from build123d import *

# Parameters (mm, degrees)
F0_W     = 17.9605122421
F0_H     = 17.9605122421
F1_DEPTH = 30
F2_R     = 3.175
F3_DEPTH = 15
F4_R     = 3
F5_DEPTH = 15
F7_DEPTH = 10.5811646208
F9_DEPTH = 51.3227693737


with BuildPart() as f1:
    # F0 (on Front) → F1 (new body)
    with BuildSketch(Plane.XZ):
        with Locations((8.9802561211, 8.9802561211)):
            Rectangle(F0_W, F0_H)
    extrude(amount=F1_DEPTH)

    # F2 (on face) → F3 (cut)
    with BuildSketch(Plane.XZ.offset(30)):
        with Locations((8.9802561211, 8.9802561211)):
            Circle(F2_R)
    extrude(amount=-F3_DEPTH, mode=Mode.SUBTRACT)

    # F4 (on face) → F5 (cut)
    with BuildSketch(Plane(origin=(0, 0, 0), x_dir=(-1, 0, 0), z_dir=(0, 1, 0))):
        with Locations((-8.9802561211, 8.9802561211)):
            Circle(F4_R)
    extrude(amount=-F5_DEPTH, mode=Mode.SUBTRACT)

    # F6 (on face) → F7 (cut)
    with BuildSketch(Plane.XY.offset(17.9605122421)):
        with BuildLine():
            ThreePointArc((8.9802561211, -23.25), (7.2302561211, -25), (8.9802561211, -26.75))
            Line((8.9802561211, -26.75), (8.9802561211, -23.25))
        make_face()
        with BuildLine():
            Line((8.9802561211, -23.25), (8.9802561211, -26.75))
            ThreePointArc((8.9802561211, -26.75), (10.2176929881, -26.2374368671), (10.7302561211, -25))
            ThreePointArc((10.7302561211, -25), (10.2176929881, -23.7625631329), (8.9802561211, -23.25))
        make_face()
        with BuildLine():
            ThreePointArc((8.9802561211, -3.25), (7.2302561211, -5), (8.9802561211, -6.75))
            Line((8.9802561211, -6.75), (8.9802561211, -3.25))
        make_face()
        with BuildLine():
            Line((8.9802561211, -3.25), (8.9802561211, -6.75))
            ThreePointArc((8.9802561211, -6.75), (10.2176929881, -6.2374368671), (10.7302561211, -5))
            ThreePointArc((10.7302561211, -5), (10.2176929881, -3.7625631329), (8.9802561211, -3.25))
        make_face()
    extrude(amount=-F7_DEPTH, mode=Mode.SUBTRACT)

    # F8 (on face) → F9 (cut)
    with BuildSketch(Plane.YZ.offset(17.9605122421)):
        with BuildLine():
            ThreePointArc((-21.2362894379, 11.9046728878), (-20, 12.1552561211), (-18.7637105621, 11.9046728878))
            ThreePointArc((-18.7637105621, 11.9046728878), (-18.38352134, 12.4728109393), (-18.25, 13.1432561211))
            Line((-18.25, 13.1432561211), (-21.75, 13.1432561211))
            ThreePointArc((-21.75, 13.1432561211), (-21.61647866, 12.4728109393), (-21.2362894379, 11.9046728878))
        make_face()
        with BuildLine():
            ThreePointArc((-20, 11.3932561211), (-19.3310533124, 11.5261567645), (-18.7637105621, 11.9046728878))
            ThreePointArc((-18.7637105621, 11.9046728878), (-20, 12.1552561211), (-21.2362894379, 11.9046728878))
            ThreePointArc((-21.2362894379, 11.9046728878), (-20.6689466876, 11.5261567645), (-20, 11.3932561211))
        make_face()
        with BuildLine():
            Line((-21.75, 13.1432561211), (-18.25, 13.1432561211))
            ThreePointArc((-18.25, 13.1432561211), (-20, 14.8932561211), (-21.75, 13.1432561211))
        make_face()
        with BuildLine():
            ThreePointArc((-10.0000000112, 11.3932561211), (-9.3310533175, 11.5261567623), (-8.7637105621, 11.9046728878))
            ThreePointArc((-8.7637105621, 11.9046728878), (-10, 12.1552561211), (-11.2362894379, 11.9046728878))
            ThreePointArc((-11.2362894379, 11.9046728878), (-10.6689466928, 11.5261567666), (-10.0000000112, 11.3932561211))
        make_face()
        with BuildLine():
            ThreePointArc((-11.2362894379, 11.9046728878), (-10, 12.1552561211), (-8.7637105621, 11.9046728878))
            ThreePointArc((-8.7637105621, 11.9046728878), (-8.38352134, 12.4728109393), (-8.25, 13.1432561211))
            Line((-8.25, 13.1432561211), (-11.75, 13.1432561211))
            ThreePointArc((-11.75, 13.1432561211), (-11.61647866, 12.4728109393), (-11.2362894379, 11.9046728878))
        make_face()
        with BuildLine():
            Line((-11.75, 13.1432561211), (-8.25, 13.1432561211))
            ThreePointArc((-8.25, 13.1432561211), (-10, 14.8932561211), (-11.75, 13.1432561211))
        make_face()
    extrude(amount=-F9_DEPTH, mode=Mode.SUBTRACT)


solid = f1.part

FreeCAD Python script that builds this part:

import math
import FreeCAD as App
import Part
import Sketcher
from FreeCAD import Vector
Q = App.Units.Quantity


def add_polygon(sketch, points):
    """Adds a closed chain of lines whose ends are joined by coincident constraints."""
    first, n = sketch.GeometryCount, len(points)
    for a, b in zip(points, points[1:] + points[:1]):
        sketch.addGeometry(Part.LineSegment(App.Vector(*a, 0), App.Vector(*b, 0)), False)
    for i in range(n):
        sketch.addConstraint(Sketcher.Constraint("Coincident", first + i, 2, first + (i + 1) % n, 1))

doc = App.newDocument("Part")
body = doc.addObject("PartDesign::Body", "Body")

sketch1 = body.newObject("Sketcher::SketchObject", "Sketch")
sketch1.AttachmentSupport = (doc.getObject("XZ_Plane"), [""])
sketch1.MapMode = "FlatFace"
add_polygon(sketch1, [(0, 17.960512), (0, 0), (17.960512, 0), (17.960512, 17.960512)])
sketch1.addConstraint(Sketcher.Constraint("Vertical", 0))
sketch1.addConstraint(Sketcher.Constraint("Horizontal", 1))
sketch1.addConstraint(Sketcher.Constraint("Vertical", 2))
sketch1.addConstraint(Sketcher.Constraint("Horizontal", 3))
sketch1.addConstraint(Sketcher.Constraint("Coincident", 0, 2, -1, 1))
sketch1.addConstraint(Sketcher.Constraint("Equal", 3, 0))
sketch1.addConstraint(Sketcher.Constraint("DistanceX", 1, 1, 1, 2, Q("17.960512 mm")))
pad1 = body.newObject("PartDesign::Pad", "Pad")
pad1.Profile = sketch1
pad1.Length = 30

sketch2 = body.newObject("Sketcher::SketchObject", "Sketch001")
sketch2.AttachmentSupport = (doc.getObject("XZ_Plane"), [""])
sketch2.MapMode = "FlatFace"
sketch2.AttachmentOffset = App.Placement(Vector(0, 0, 30), App.Rotation())
sketch2.addGeometry(Part.Circle(Vector(8.980256, 8.980256, 0), Vector(0, 0, 1), 3.175), False)
sketch2.addConstraint(Sketcher.Constraint("Diameter", 0, Q("6.35 mm")))
sketch2.addConstraint(Sketcher.Constraint("DistanceX", -1, 1, 0, 3, Q("8.980256 mm")))
sketch2.addConstraint(Sketcher.Constraint("DistanceY", -1, 1, 0, 3, Q("8.980256 mm")))
pocket1 = body.newObject("PartDesign::Pocket", "Pocket")
pocket1.Profile = sketch2
pocket1.Length = 15

sketch3 = body.newObject("Sketcher::SketchObject", "Sketch002")
sketch3.AttachmentSupport = (doc.getObject("XZ_Plane"), [""])
sketch3.MapMode = "FlatFace"
sketch3.addGeometry(Part.Circle(Vector(8.980256, 8.980256, 0), Vector(0, 0, 1), 3), False)
sketch3.addConstraint(Sketcher.Constraint("Diameter", 0, Q("6 mm")))
sketch3.addConstraint(Sketcher.Constraint("DistanceX", -1, 1, 0, 3, Q("8.980256 mm")))
sketch3.addConstraint(Sketcher.Constraint("DistanceY", -1, 1, 0, 3, Q("8.980256 mm")))
pocket2 = body.newObject("PartDesign::Pocket", "Pocket001")
pocket2.Profile = sketch3
pocket2.Length = 15
pocket2.Reversed = True

sketch4 = body.newObject("Sketcher::SketchObject", "Sketch003")
sketch4.AttachmentSupport = (doc.getObject("XY_Plane"), [""])
sketch4.MapMode = "FlatFace"
sketch4.AttachmentOffset = App.Placement(Vector(0, 0, 17.960512), App.Rotation())
sketch4.addGeometry(Part.ArcOfCircle(Part.Circle(Vector(8.980256, -25, 0), Vector(0, 0, 1), 1.75), math.radians(90), math.radians(270)), False)
sketch4.addGeometry(Part.ArcOfCircle(Part.Circle(Vector(8.980256, -25, 0), Vector(0, 0, 1), 1.75), math.radians(-90), math.radians(0)), False)
sketch4.addGeometry(Part.ArcOfCircle(Part.Circle(Vector(8.980256, -25, 0), Vector(0, 0, 1), 1.75), math.radians(0), math.radians(90)), False)
sketch4.addGeometry(Part.ArcOfCircle(Part.Circle(Vector(8.980256, -5, 0), Vector(0, 0, 1), 1.75), math.radians(90), math.radians(270)), False)
sketch4.addGeometry(Part.ArcOfCircle(Part.Circle(Vector(8.980256, -5, 0), Vector(0, 0, 1), 1.75), math.radians(-90), math.radians(0)), False)
sketch4.addGeometry(Part.ArcOfCircle(Part.Circle(Vector(8.980256, -5, 0), Vector(0, 0, 1), 1.75), math.radians(0), math.radians(90)), False)
sketch4.addConstraint(Sketcher.Constraint("Tangent", 0, 2, 1, 1))
sketch4.addConstraint(Sketcher.Constraint("Tangent", 1, 2, 2, 1))
sketch4.addConstraint(Sketcher.Constraint("Tangent", 2, 2, 0, 1))
sketch4.addConstraint(Sketcher.Constraint("Tangent", 3, 2, 4, 1))
sketch4.addConstraint(Sketcher.Constraint("Tangent", 4, 2, 5, 1))
sketch4.addConstraint(Sketcher.Constraint("Tangent", 5, 2, 3, 1))
sketch4.addConstraint(Sketcher.Constraint("Equal", 2, 3))
sketch4.addConstraint(Sketcher.Constraint("Horizontal", 2, 3, 1, 2))
sketch4.addConstraint(Sketcher.Constraint("Horizontal", 5, 3, 4, 2))
sketch4.addConstraint(Sketcher.Constraint("Vertical", 2, 3, 3, 3))
sketch4.addConstraint(Sketcher.Constraint("Vertical", 5, 3, 0, 2))
sketch4.addConstraint(Sketcher.Constraint("Vertical", 0, 2, 2, 2))
sketch4.addConstraint(Sketcher.Constraint("Vertical", 2, 2, 3, 2))
sketch4.addConstraint(Sketcher.Constraint("Vertical", 3, 2, 5, 2))
sketch4.addConstraint(Sketcher.Constraint("Radius", 0, Q("1.75 mm")))
sketch4.addConstraint(Sketcher.Constraint("DistanceY", 0, 3, -1, 1, Q("25 mm")))
sketch4.addConstraint(Sketcher.Constraint("DistanceY", 3, 3, -1, 1, Q("5 mm")))
sketch4.addConstraint(Sketcher.Constraint("DistanceX", -1, 1, 0, 3, Q("8.980256 mm")))
pocket3 = body.newObject("PartDesign::Pocket", "Pocket002")
pocket3.Profile = sketch4
pocket3.Length = 10.581165

sketch5 = body.newObject("Sketcher::SketchObject", "Sketch004")
sketch5.AttachmentSupport = (doc.getObject("YZ_Plane"), [""])
sketch5.MapMode = "FlatFace"
sketch5.AttachmentOffset = App.Placement(Vector(0, 0, 17.960512), App.Rotation())
sketch5.addGeometry(Part.ArcOfCircle(Part.Circle(Vector(-20, 13.143256, 0), Vector(0, 0, 1), 1.75), math.radians(-45.053104), math.radians(0)), False)
sketch5.addGeometry(Part.ArcOfCircle(Part.Circle(Vector(-20, 13.143256, 0), Vector(0, 0, 1), 1.75), math.radians(0), math.radians(180)), False)
sketch5.addGeometry(Part.ArcOfCircle(Part.Circle(Vector(-20, 13.143256, 0), Vector(0, 0, 1), 1.75), math.radians(180), math.radians(225.053104)), False)
sketch5.addGeometry(Part.ArcOfCircle(Part.Circle(Vector(-20, 13.143256, 0), Vector(0, 0, 1), 1.75), math.radians(-134.946896), math.radians(-90)), False)
sketch5.addGeometry(Part.ArcOfCircle(Part.Circle(Vector(-20, 13.143256, 0), Vector(0, 0, 1), 1.75), math.radians(-90), math.radians(-45.053104)), False)
sketch5.addGeometry(Part.ArcOfCircle(Part.Circle(Vector(-10, 13.143256, 0), Vector(0, 0, 1), 1.75), math.radians(-90), math.radians(-45.053104)), False)
sketch5.addGeometry(Part.ArcOfCircle(Part.Circle(Vector(-10, 13.143256, 0), Vector(0, 0, 1), 1.75), math.radians(-45.053104), math.radians(0)), False)
sketch5.addGeometry(Part.ArcOfCircle(Part.Circle(Vector(-10, 13.143256, 0), Vector(0, 0, 1), 1.75), math.radians(0), math.radians(180)), False)
sketch5.addGeometry(Part.ArcOfCircle(Part.Circle(Vector(-10, 13.143256, 0), Vector(0, 0, 1), 1.75), math.radians(180), math.radians(225.053104)), False)
sketch5.addGeometry(Part.ArcOfCircle(Part.Circle(Vector(-10, 13.143256, 0), Vector(0, 0, 1), 1.75), math.radians(-134.946896), math.radians(-90)), False)
sketch5.addConstraint(Sketcher.Constraint("Tangent", 0, 2, 1, 1))
sketch5.addConstraint(Sketcher.Constraint("Tangent", 1, 2, 2, 1))
sketch5.addConstraint(Sketcher.Constraint("Tangent", 2, 2, 3, 1))
sketch5.addConstraint(Sketcher.Constraint("Tangent", 3, 2, 4, 1))
sketch5.addConstraint(Sketcher.Constraint("Tangent", 4, 2, 0, 1))
sketch5.addConstraint(Sketcher.Constraint("Tangent", 5, 2, 6, 1))
sketch5.addConstraint(Sketcher.Constraint("Tangent", 6, 2, 7, 1))
sketch5.addConstraint(Sketcher.Constraint("Tangent", 7, 2, 8, 1))
sketch5.addConstraint(Sketcher.Constraint("Tangent", 8, 2, 9, 1))
sketch5.addConstraint(Sketcher.Constraint("Tangent", 9, 2, 5, 1))
sketch5.addConstraint(Sketcher.Constraint("Coincident", 3, 3, 0, 3))
sketch5.addConstraint(Sketcher.Constraint("Coincident", 7, 3, 5, 3))
sketch5.addConstraint(Sketcher.Constraint("Equal", 4, 5))
sketch5.addConstraint(Sketcher.Constraint("Horizontal", 4, 3, 5, 3))
sketch5.addConstraint(Sketcher.Constraint("Horizontal", 9, 3, 0, 2))
sketch5.addConstraint(Sketcher.Constraint("Horizontal", 0, 2, 1, 2))
sketch5.addConstraint(Sketcher.Constraint("Horizontal", 2, 2, 4, 2))
sketch5.addConstraint(Sketcher.Constraint("Horizontal", 4, 2, 5, 2))
sketch5.addConstraint(Sketcher.Constraint("Horizontal", 1, 2, 6, 2))
sketch5.addConstraint(Sketcher.Constraint("Horizontal", 6, 2, 7, 2))
sketch5.addConstraint(Sketcher.Constraint("Horizontal", 5, 2, 8, 2))
sketch5.addConstraint(Sketcher.Constraint("Vertical", 4, 3, 3, 2))
sketch5.addConstraint(Sketcher.Constraint("Vertical", 8, 3, 9, 2))
sketch5.addConstraint(Sketcher.Constraint("Radius", 0, Q("1.75 mm")))
sketch5.addConstraint(Sketcher.Constraint("DistanceX", 0, 3, -1, 1, Q("20 mm")))
sketch5.addConstraint(Sketcher.Constraint("DistanceX", 5, 3, -1, 1, Q("10 mm")))
sketch5.addConstraint(Sketcher.Constraint("DistanceX", 2, 2, -1, 1, Q("21.236289 mm")))
sketch5.addConstraint(Sketcher.Constraint("DistanceY", -1, 1, 0, 3, Q("13.143256 mm")))
pocket4 = body.newObject("PartDesign::Pocket", "Pocket003")
pocket4.Profile = sketch5
pocket4.Length = 51.322769

doc.recompute()
